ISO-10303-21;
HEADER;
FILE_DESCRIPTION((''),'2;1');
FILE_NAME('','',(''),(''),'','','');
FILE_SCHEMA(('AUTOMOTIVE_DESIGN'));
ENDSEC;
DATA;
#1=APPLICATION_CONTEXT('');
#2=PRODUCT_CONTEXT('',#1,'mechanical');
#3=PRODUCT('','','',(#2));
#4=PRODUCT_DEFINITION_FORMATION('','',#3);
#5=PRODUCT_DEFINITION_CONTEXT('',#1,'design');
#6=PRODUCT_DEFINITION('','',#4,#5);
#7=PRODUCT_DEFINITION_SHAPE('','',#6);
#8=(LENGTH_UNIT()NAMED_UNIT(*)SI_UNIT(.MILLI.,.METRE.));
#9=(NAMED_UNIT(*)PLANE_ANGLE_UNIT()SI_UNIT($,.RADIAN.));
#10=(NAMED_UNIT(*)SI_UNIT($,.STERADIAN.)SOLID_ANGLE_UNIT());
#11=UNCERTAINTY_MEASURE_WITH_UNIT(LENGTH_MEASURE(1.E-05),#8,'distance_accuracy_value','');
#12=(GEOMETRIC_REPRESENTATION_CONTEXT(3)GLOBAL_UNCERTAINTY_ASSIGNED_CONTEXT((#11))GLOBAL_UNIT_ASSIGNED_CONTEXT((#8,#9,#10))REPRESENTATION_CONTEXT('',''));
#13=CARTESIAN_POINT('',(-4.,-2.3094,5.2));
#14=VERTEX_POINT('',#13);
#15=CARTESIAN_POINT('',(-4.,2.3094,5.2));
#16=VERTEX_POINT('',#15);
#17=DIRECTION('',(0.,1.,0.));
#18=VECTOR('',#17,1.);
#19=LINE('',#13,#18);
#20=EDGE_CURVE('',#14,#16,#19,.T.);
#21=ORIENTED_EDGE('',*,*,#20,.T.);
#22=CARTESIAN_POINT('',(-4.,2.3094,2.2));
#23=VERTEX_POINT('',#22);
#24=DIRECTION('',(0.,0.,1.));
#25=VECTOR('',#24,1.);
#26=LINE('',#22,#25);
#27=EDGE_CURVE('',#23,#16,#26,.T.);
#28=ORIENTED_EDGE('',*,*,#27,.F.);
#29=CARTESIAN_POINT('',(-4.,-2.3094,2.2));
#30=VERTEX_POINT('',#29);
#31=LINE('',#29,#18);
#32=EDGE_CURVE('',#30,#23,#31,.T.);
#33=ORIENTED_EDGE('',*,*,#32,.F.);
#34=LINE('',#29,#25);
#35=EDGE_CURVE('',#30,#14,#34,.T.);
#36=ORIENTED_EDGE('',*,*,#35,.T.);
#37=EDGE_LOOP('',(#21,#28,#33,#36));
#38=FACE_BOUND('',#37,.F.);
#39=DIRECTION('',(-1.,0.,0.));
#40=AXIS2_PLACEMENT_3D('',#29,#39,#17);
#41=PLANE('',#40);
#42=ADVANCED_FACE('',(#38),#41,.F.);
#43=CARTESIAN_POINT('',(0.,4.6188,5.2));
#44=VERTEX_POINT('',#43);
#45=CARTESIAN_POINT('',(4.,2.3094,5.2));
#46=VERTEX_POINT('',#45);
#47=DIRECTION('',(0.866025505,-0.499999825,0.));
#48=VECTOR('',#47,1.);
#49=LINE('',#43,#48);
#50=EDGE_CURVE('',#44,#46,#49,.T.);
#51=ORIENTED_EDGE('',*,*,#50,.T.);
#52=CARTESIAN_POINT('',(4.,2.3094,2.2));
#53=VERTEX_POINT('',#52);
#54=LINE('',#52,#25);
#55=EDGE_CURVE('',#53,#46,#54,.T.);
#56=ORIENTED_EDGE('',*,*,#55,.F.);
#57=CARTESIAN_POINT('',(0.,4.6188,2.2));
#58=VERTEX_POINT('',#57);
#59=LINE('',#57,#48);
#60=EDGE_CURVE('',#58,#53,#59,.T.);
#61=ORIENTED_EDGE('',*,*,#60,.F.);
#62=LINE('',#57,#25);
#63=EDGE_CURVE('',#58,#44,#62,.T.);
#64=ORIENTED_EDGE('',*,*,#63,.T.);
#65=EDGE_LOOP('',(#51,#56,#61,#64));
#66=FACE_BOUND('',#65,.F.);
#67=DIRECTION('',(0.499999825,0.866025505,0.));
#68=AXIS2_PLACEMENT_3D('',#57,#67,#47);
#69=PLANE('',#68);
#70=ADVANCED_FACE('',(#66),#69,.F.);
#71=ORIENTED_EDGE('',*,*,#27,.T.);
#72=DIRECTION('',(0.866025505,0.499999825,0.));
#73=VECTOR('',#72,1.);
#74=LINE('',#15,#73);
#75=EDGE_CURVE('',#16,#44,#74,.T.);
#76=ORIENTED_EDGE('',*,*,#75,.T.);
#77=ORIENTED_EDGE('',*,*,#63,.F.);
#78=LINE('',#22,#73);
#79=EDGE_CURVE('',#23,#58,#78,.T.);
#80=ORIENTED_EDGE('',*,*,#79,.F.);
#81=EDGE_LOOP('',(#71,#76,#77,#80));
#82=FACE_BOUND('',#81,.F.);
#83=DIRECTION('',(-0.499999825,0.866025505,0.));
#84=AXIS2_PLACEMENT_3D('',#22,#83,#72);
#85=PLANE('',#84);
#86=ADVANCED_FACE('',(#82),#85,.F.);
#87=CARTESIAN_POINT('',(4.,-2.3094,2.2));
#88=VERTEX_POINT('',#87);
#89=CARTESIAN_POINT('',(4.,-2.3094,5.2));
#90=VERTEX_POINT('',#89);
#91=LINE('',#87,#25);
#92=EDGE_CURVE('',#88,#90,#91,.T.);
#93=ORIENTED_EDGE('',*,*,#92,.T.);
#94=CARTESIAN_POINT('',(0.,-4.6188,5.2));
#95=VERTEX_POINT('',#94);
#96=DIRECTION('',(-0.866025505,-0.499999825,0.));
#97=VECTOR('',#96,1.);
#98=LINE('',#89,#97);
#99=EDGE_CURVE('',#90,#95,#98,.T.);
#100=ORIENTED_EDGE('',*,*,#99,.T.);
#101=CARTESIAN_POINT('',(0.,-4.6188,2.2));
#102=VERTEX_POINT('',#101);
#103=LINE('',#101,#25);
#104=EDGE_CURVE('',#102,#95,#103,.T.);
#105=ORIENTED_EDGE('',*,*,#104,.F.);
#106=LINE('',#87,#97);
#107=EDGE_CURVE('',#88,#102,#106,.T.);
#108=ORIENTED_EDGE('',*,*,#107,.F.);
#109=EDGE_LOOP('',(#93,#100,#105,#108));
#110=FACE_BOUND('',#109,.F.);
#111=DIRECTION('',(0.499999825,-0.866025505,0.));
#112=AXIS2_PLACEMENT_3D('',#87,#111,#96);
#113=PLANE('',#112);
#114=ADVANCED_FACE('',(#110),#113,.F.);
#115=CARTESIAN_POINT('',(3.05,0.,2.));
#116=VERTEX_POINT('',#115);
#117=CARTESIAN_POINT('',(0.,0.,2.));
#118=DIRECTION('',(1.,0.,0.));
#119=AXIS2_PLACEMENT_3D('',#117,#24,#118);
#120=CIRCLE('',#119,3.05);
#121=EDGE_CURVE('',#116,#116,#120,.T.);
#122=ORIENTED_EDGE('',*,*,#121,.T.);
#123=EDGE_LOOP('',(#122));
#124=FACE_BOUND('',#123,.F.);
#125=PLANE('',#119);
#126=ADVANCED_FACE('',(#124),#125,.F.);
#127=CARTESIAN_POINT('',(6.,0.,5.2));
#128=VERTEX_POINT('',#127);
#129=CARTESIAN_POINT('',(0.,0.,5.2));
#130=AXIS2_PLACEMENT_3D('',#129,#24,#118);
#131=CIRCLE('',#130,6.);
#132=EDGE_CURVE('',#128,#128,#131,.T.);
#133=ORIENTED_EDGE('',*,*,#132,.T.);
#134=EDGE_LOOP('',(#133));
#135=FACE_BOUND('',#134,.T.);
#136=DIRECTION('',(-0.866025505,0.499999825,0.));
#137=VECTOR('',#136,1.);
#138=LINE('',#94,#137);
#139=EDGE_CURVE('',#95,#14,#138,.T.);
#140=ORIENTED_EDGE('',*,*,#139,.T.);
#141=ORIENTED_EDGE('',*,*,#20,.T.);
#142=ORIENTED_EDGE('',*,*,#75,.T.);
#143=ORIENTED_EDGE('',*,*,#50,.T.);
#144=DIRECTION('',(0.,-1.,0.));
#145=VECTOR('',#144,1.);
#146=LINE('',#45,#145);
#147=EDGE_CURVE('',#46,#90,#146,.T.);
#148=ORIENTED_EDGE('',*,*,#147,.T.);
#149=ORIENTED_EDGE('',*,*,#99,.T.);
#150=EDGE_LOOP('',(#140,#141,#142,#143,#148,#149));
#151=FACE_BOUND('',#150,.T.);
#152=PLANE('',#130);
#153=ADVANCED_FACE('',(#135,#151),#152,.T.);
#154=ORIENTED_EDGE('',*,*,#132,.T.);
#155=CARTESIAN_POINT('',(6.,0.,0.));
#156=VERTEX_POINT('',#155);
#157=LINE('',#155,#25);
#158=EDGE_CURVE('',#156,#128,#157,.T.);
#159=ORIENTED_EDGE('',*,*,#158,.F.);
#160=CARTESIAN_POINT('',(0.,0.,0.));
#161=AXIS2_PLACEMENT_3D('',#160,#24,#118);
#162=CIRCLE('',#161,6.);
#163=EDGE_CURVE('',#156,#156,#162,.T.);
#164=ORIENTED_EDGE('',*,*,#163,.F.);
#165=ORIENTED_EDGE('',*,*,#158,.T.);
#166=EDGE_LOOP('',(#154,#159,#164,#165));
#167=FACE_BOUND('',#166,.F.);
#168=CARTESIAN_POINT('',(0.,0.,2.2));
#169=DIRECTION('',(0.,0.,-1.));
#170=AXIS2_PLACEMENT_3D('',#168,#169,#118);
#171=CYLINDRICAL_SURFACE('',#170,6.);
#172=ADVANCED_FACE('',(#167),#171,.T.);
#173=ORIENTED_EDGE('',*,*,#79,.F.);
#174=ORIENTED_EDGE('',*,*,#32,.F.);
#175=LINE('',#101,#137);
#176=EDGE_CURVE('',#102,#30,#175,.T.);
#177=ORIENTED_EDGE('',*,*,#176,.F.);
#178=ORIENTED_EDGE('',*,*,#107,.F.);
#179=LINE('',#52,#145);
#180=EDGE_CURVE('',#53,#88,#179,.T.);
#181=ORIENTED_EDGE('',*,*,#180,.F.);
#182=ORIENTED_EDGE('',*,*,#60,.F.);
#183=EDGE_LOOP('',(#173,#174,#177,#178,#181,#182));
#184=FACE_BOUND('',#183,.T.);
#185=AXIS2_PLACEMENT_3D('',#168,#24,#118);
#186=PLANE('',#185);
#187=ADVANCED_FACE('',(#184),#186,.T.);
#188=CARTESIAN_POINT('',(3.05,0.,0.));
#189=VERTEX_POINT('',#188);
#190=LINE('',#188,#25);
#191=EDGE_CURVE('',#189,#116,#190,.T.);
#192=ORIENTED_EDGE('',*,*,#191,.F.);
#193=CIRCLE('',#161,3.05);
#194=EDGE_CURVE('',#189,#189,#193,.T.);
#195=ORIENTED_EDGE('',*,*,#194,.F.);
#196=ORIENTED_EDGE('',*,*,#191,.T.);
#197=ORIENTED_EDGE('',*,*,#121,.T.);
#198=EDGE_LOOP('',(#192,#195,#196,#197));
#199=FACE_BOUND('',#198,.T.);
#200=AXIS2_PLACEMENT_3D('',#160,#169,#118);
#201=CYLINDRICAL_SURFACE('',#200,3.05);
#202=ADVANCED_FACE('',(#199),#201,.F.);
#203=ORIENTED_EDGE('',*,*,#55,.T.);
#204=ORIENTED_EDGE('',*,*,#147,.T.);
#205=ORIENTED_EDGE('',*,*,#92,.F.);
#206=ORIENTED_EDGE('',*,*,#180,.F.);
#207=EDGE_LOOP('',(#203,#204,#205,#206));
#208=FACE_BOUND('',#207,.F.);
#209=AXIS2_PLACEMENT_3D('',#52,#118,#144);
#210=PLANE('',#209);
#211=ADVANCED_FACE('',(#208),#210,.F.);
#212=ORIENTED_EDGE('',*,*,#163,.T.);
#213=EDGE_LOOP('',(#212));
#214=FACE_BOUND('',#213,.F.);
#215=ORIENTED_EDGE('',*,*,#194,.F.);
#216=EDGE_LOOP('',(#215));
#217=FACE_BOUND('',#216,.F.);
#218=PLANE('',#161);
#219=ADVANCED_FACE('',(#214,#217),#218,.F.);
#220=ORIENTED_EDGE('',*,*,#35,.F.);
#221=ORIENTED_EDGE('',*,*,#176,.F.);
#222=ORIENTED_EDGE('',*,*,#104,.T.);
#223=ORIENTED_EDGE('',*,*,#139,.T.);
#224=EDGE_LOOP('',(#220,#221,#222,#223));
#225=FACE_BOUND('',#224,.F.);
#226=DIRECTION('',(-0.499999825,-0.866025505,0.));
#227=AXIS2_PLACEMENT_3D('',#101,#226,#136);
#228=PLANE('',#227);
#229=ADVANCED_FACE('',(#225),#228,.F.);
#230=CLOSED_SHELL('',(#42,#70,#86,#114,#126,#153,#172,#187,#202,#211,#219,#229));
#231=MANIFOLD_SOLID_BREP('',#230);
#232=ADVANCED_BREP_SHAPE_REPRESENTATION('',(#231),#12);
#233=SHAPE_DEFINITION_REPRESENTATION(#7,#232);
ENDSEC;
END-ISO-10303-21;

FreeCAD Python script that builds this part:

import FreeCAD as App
import Part
import Sketcher

V = App.Vector
Q = App.Units.Quantity

doc = App.newDocument("Part")
params = doc.addObject("Spreadsheet::Sheet", "Params")
for row, (alias, value) in enumerate([
    ("sketch1_diameter", "12 mm"),
    ("sketch1_diameter2", "6.1 mm"),
    ("pad1_length", "2 mm"),
    ("sketch2_diameter", "12 mm"),
    ("pad2_length", "0.2 mm"),
    ("sketch3_diameter", "12 mm"),
    ("pad3_length", "3 mm"),
], start=1):
    params.set(f"A{row}", alias)
    params.set(f"B{row}", "=" + value)
    params.setAlias(f"B{row}", alias)

body = doc.addObject("PartDesign::Body", "Body")

# Sketch on XY plane
sketch1 = doc.addObject("Sketcher::SketchObject", "Sketch")
body.addObject(sketch1)
sketch1.AttachmentSupport = (doc.XY_Plane, [""])
sketch1.MapMode = "FlatFace"
sketch1.addGeometry(Part.Circle(V(0, 0, 0), V(0, 0, 1), 6), False)
sketch1.addGeometry(Part.Circle(V(0, 0, 0), V(0, 0, 1), 3), False)
sketch1.addConstraint(Sketcher.Constraint("Coincident", 0, 3, -1, 1))
sketch1.addConstraint(Sketcher.Constraint("Coincident", 1, 3, -1, 1))
sketch1.addConstraint(Sketcher.Constraint("Diameter", 0, Q("12 mm")))
sketch1.addConstraint(Sketcher.Constraint("Diameter", 1, Q("6.1 mm")))
sketch1.setExpression("Constraints[2]", "Params.sketch1_diameter")
sketch1.setExpression("Constraints[3]", "Params.sketch1_diameter2")
pad1 = doc.addObject("PartDesign::Pad", "Pad")
body.addObject(pad1)
pad1.Profile = sketch1
pad1.setExpression("Length", "Params.pad1_length")

# Sketch on XY plane
sketch2 = doc.addObject("Sketcher::SketchObject", "Sketch001")
body.addObject(sketch2)
sketch2.AttachmentSupport = (doc.XY_Plane, [""])
sketch2.MapMode = "FlatFace"
sketch2.AttachmentOffset = App.Placement(V(0, 0, 2), App.Rotation())
sketch2.addGeometry(Part.Circle(V(0, 0, 0), V(0, 0, 1), 6), False)
sketch2.addConstraint(Sketcher.Constraint("Coincident", 0, 3, -1, 1))
sketch2.addConstraint(Sketcher.Constraint("Diameter", 0, Q("12 mm")))
sketch2.setExpression("Constraints[1]", "Params.sketch2_diameter")
pad2 = doc.addObject("PartDesign::Pad", "Pad001")
body.addObject(pad2)
pad2.Profile = sketch2
pad2.setExpression("Length", "Params.pad2_length")

# Sketch on XY plane
sketch3 = doc.addObject("Sketcher::SketchObject", "Sketch002")
body.addObject(sketch3)
sketch3.AttachmentSupport = (doc.XY_Plane, [""])
sketch3.MapMode = "FlatFace"
sketch3.AttachmentOffset = App.Placement(V(0, 0, 2.2), App.Rotation())
sketch3.addGeometry(Part.Circle(V(0, 0, 0), V(0, 0, 1), 6), False)
sketch3.addGeometry(Part.LineSegment(V(-4, 2.3, 0), V(0, 4.6, 0)), False)
sketch3.addGeometry(Part.LineSegment(V(0, 4.6, 0), V(4, 2.3, 0)), False)
sketch3.addGeometry(Part.LineSegment(V(4, 2.3, 0), V(4, -2.3, 0)), False)
sketch3.addGeometry(Part.LineSegment(V(4, -2.3, 0), V(0, -4.6, 0)), False)
sketch3.addGeometry(Part.LineSegment(V(0, -4.6, 0), V(-4, -2.3, 0)), False)
sketch3.addGeometry(Part.LineSegment(V(-4, -2.3, 0), V(-4, 2.3, 0)), False)
sketch3.addConstraint(Sketcher.Constraint("Coincident", 1, 2, 2, 1))
sketch3.addConstraint(Sketcher.Constraint("Coincident", 2, 2, 3, 1))
sketch3.addConstraint(Sketcher.Constraint("Coincident", 3, 2, 4, 1))
sketch3.addConstraint(Sketcher.Constraint("Coincident", 4, 2, 5, 1))
sketch3.addConstraint(Sketcher.Constraint("Coincident", 5, 2, 6, 1))
sketch3.addConstraint(Sketcher.Constraint("Coincident", 6, 2, 1, 1))
sketch3.addConstraint(Sketcher.Constraint("Vertical", 3))
sketch3.addConstraint(Sketcher.Constraint("Vertical", 6))
sketch3.addConstraint(Sketcher.Constraint("Coincident", 0, 3, -1, 1))
sketch3.addConstraint(Sketcher.Constraint("Symmetric", 1, 2, 4, 2, -1, 1))
sketch3.addConstraint(Sketcher.Constraint("Symmetric", 2, 2, 5, 2, -1, 1))
sketch3.addConstraint(Sketcher.Constraint("PointOnObject", 1, 2, -2))
sketch3.addConstraint(Sketcher.Constraint("Parallel", 1, 4))
sketch3.addConstraint(Sketcher.Constraint("Horizontal", 3, 2, 5, 2))
sketch3.addConstraint(Sketcher.Constraint("Diameter", 0, Q("12 mm")))
sketch3.addConstraint(Sketcher.Constraint("DistanceX", 5, 2, 3, 2, Q("8 mm")))
sketch3.addConstraint(Sketcher.Constraint("Angle", 1, Q("30 deg")))
sketch3.addConstraint(Sketcher.Constraint("DistanceY", 3, 2, 3, 1, Q("4.6188 mm")))
sketch3.setExpression("Constraints[14]", "Params.sketch3_diameter")
pad3 = doc.addObject("PartDesign::Pad", "Pad002")
body.addObject(pad3)
pad3.Profile = sketch3
pad3.setExpression("Length", "Params.pad3_length")

doc.recompute()
